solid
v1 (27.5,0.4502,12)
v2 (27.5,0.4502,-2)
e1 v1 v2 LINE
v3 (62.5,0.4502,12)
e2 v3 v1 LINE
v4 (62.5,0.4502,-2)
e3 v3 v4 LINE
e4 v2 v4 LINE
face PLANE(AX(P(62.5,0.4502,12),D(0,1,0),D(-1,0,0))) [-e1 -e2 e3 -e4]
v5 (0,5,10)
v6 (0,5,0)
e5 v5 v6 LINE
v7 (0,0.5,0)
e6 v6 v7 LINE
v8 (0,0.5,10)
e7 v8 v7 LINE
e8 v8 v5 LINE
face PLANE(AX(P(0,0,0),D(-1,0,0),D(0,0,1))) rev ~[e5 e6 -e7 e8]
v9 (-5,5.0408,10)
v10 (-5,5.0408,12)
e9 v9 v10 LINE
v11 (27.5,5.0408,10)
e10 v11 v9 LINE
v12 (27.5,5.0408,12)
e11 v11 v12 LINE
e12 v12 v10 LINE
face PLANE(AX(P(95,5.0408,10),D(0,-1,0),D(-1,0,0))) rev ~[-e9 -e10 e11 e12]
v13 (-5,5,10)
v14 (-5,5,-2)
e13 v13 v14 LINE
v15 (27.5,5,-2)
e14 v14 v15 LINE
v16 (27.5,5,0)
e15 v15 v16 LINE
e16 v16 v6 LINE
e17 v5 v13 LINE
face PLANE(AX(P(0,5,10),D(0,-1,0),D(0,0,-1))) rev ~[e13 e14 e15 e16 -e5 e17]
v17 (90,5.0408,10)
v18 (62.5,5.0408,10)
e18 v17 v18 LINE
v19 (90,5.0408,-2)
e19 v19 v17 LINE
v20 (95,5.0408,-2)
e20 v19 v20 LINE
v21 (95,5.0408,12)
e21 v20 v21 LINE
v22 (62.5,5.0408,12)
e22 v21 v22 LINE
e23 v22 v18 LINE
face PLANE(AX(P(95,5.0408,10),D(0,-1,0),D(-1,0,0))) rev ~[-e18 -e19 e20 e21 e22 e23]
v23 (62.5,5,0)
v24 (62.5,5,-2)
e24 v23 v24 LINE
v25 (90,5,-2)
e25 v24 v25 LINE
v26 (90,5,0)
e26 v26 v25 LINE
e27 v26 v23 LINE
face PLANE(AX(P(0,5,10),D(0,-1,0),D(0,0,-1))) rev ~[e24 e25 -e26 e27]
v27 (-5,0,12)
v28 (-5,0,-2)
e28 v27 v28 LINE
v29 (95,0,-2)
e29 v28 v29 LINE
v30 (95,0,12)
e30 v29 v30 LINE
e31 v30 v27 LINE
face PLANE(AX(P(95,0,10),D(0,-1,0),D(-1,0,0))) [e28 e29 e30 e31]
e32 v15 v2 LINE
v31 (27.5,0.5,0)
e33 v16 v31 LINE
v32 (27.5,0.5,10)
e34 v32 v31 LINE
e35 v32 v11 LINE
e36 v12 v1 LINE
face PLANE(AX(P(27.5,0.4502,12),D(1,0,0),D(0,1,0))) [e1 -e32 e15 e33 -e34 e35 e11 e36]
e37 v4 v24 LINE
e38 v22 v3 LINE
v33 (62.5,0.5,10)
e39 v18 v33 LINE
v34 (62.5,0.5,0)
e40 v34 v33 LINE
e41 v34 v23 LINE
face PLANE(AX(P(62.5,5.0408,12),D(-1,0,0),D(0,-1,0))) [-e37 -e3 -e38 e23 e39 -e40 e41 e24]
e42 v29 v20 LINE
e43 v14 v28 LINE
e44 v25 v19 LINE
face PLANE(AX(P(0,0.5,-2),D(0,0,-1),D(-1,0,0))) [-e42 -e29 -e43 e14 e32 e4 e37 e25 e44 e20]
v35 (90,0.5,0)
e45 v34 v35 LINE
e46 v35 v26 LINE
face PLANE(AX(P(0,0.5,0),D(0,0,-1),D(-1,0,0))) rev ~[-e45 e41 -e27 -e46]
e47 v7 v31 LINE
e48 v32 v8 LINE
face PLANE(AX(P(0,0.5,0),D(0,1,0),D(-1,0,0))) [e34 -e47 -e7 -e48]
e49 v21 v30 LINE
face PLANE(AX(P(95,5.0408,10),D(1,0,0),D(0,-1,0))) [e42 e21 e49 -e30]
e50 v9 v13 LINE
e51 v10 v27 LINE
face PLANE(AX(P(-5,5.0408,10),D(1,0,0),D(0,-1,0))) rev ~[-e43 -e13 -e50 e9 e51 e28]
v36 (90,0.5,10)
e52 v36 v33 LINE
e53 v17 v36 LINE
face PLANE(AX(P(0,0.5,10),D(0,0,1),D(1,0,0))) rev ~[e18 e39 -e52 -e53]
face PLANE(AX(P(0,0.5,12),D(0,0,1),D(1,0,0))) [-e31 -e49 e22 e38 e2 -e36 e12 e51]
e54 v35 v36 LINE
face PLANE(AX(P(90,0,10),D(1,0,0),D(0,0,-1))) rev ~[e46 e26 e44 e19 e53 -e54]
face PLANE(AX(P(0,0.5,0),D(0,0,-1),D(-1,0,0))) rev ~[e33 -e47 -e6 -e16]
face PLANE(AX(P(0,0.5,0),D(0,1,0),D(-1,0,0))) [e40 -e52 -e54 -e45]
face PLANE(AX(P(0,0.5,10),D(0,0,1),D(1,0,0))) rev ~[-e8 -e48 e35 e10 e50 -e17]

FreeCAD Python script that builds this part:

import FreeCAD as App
import Part
import Sketcher

V = App.Vector

doc = App.newDocument("Part")
body = doc.addObject("PartDesign::Body", "Body")
body.AllowCompound = True

# Sketch on XZ plane
sketch1 = doc.addObject("Sketcher::SketchObject", "Sketch")
body.addObject(sketch1)
sketch1.AttachmentSupport = (doc.XZ_Plane, [""])
sketch1.MapMode = "FlatFace"
sketch1.addGeometry([
    Part.LineSegment(V(90, 0, 0), V(0, 0, 0)),
    Part.LineSegment(V(0, 0, 0), V(0, 10, 0)),
    Part.LineSegment(V(0, 10, 0), V(90, 10, 0)),
    Part.LineSegment(V(90, 10, 0), V(90, 0, 0)),
], False)
sketch1.addConstraint([
    Sketcher.Constraint("Coincident", 0, 2, 1, 1),
    Sketcher.Constraint("Coincident", 1, 2, 2, 1),
    Sketcher.Constraint("Coincident", 2, 2, 3, 1),
    Sketcher.Constraint("Coincident", 3, 2, 0, 1),
    Sketcher.Constraint("Horizontal", 0),
    Sketcher.Constraint("Vertical", 1),
    Sketcher.Constraint("Horizontal", 2),
    Sketcher.Constraint("Vertical", 3),
    Sketcher.Constraint("Coincident", 0, 2, -1, 1),
    Sketcher.Constraint("DistanceX", 0, 2, 0, 1, 90.0),
    Sketcher.Constraint("DistanceY", 1, 1, 1, 2, 10.0),
])
pad1 = doc.addObject("PartDesign::Pad", "Pad")
body.addObject(pad1)
pad1.Profile = sketch1
pad1.Length = 0.5
pad1.Reversed = True

# Sketch on YZ plane
sketch2 = doc.addObject("Sketcher::SketchObject", "Sketch001")
body.addObject(sketch2)
sketch2.AttachmentSupport = (doc.YZ_Plane, [""])
sketch2.MapMode = "FlatFace"
sketch2.addGeometry([
    Part.LineSegment(V(0.5, 0, 0), V(0.5, 10, 0)),
    Part.LineSegment(V(0.5, 10, 0), V(5, 10, 0)),
    Part.LineSegment(V(5, 10, 0), V(5, 0, 0)),
    Part.LineSegment(V(5, 0, 0), V(0.5, 0, 0)),
], False)
sketch2.addConstraint([
    Sketcher.Constraint("Coincident", 0, 2, 1, 1),
    Sketcher.Constraint("Coincident", 1, 2, 2, 1),
    Sketcher.Constraint("Coincident", 2, 2, 3, 1),
    Sketcher.Constraint("Coincident", 3, 2, 0, 1),
    Sketcher.Constraint("Vertical", 0),
    Sketcher.Constraint("Horizontal", 1),
    Sketcher.Constraint("Vertical", 2),
    Sketcher.Constraint("Horizontal", 3),
    Sketcher.Constraint("PointOnObject", 2, 2, -1),
    Sketcher.Constraint("DistanceX", -1, 1, 1, 2, 5.0),
    Sketcher.Constraint("DistanceY", 0, 1, 0, 2, 10.0),
    Sketcher.Constraint("DistanceX", 1, 1, 1, 2, 4.5),
])
pad2 = doc.addObject("PartDesign::Pad", "Pad001")
body.addObject(pad2)
pad2.Profile = sketch2
pad2.Length = 5
pad2.Reversed = True

# Sketch on YZ plane
sketch3 = doc.addObject("Sketcher::SketchObject", "Sketch002")
body.addObject(sketch3)
sketch3.AttachmentSupport = (doc.YZ_Plane, [""])
sketch3.MapMode = "FlatFace"
sketch3.addGeometry([
    Part.LineSegment(V(0, 0, 0), V(0, 10, 0)),
    Part.LineSegment(V(0, 10, 0), V(0.5, 10, 0)),
    Part.LineSegment(V(0.5, 10, 0), V(0.5, 0, 0)),
    Part.LineSegment(V(0.5, 0, 0), V(0, 0, 0)),
], False)
sketch3.addConstraint([
    Sketcher.Constraint("Coincident", 0, 2, 1, 1),
    Sketcher.Constraint("Coincident", 1, 2, 2, 1),
    Sketcher.Constraint("Coincident", 2, 2, 3, 1),
    Sketcher.Constraint("Coincident", 3, 2, 0, 1),
    Sketcher.Constraint("Vertical", 0),
    Sketcher.Constraint("Horizontal", 1),
    Sketcher.Constraint("Vertical", 2),
    Sketcher.Constraint("Horizontal", 3),
    Sketcher.Constraint("Coincident", 3, 2, -1, 1),
    Sketcher.Constraint("DistanceY", 0, 1, 0, 2, 10.0),
    Sketcher.Constraint("DistanceX", 1, 1, 1, 2, 0.5),
])
pad3 = doc.addObject("PartDesign::Pad", "Pad002")
body.addObject(pad3)
pad3.Profile = sketch3
pad3.Length = 5
pad3.Reversed = True

# Sketch on YZ plane
sketch4 = doc.addObject("Sketcher::SketchObject", "Sketch003")
body.addObject(sketch4)
sketch4.AttachmentSupport = (doc.YZ_Plane, [""])
sketch4.MapMode = "FlatFace"
sketch4.AttachmentOffset = App.Placement(V(0, 0, 90), App.Rotation())
sketch4.addGeometry([
    Part.LineSegment(V(5, 10, 0), V(0, 10, 0)),
    Part.LineSegment(V(0, 10, 0), V(0, 0, 0)),
    Part.LineSegment(V(0, 0, 0), V(5, 0, 0)),
    Part.LineSegment(V(5, 0, 0), V(5, 10, 0)),
], False)
sketch4.addConstraint([
    Sketcher.Constraint("Coincident", 0, 2, 1, 1),
    Sketcher.Constraint("Coincident", 1, 2, 2, 1),
    Sketcher.Constraint("Coincident", 2, 2, 3, 1),
    Sketcher.Constraint("Coincident", 3, 2, 0, 1),
    Sketcher.Constraint("Horizontal", 0),
    Sketcher.Constraint("Vertical", 1),
    Sketcher.Constraint("Horizontal", 2),
    Sketcher.Constraint("Vertical", 3),
    Sketcher.Constraint("Coincident", 1, 2, -1, 1),
    Sketcher.Constraint("DistanceY", 1, 2, 1, 1, 10.0),
    Sketcher.Constraint("DistanceX", 0, 2, 0, 1, 5.0408),
])
pad4 = doc.addObject("PartDesign::Pad", "Pad003")
body.addObject(pad4)
pad4.Profile = sketch4
pad4.Length = 5

# Sketch on XY plane
sketch5 = doc.addObject("Sketcher::SketchObject", "Sketch004")
body.addObject(sketch5)
sketch5.AttachmentSupport = (doc.XY_Plane, [""])
sketch5.MapMode = "FlatFace"
sketch5.addGeometry([
    Part.LineSegment(V(95, 0, 0), V(-5, 0, 0)),  # 0
    Part.LineSegment(V(-5, 0, 0), V(-5, 5, 0)),  # 1
    Part.LineSegment(V(-5, 5, 0), V(90, 5, 0)),  # 2
    Part.LineSegment(V(90, 5, 0), V(90, 5.041, 0)),  # 3
    Part.LineSegment(V(90, 5.041, 0), V(95, 5.041, 0)),  # 4
    Part.LineSegment(V(95, 5.041, 0), V(95, 0, 0)),  # 5
], False)
sketch5.addConstraint([
    Sketcher.Constraint("Coincident", 0, 2, 1, 1),
    Sketcher.Constraint("Coincident", 1, 2, 2, 1),
    Sketcher.Constraint("Coincident", 2, 2, 3, 1),
    Sketcher.Constraint("Coincident", 3, 2, 4, 1),
    Sketcher.Constraint("Coincident", 4, 2, 5, 1),
    Sketcher.Constraint("Coincident", 5, 2, 0, 1),
    Sketcher.Constraint("Horizontal", 0),
    Sketcher.Constraint("Vertical", 1),
    Sketcher.Constraint("Horizontal", 2),
    Sketcher.Constraint("Vertical", 3),
    Sketcher.Constraint("Horizontal", 4),
    Sketcher.Constraint("Vertical", 5),
    Sketcher.Constraint("PointOnObject", 0, 2, -1),
    Sketcher.Constraint("Equal", 4, 1),
    Sketcher.Constraint("DistanceX", 0, 2, 0, 1, 100.0),
    Sketcher.Constraint("DistanceX", 2, 1, 2, 2, 95.0),
    Sketcher.Constraint("DistanceX", 0, 2, -1, 1, 5.0),
    Sketcher.Constraint("DistanceY", 3, 1, 3, 2, 0.0408),
])
pad5 = doc.addObject("PartDesign::Pad", "Pad004")
body.addObject(pad5)
pad5.Profile = sketch5
pad5.Length = 2
pad5.Reversed = True

# Sketch on XY plane
sketch6 = doc.addObject("Sketcher::SketchObject", "Sketch005")
body.addObject(sketch6)
sketch6.AttachmentSupport = (doc.XY_Plane, [""])
sketch6.MapMode = "FlatFace"
sketch6.AttachmentOffset = App.Placement(V(0, 0, 10), App.Rotation())
sketch6.addGeometry([
    Part.LineSegment(V(-5, 0, 0), V(95, 0, 0)),
    Part.LineSegment(V(95, 0, 0), V(95, 5, 0)),
    Part.LineSegment(V(95, 5, 0), V(-5, 5, 0)),
    Part.LineSegment(V(-5, 5, 0), V(-5, 0, 0)),
], False)
sketch6.addConstraint([
    Sketcher.Constraint("Coincident", 0, 2, 1, 1),
    Sketcher.Constraint("Coincident", 1, 2, 2, 1),
    Sketcher.Constraint("Coincident", 2, 2, 3, 1),
    Sketcher.Constraint("Coincident", 3, 2, 0, 1),
    Sketcher.Constraint("Horizontal", 0),
    Sketcher.Constraint("Vertical", 1),
    Sketcher.Constraint("Horizontal", 2),
    Sketcher.Constraint("Vertical", 3),
    Sketcher.Constraint("PointOnObject", 0, 2, -1),
    Sketcher.Constraint("DistanceX", 0, 1, 0, 2, 100.0),
    Sketcher.Constraint("DistanceX", -1, 1, 0, 2, 95.0),
    Sketcher.Constraint("DistanceY", 1, 1, 1, 2, 5.0408),
])
pad6 = doc.addObject("PartDesign::Pad", "Pad005")
body.addObject(pad6)
pad6.Profile = sketch6
pad6.Length = 2

# Sketch on XY plane
sketch7 = doc.addObject("Sketcher::SketchObject", "Sketch006")
body.addObject(sketch7)
sketch7.AttachmentSupport = (doc.XY_Plane, [""])
sketch7.MapMode = "FlatFace"
sketch7.AttachmentOffset = App.Placement(V(0, 0, 12), App.Rotation())
sketch7.addGeometry([
    Part.LineSegment(V(62, 0, 0), V(62, 10, 0)),
    Part.LineSegment(V(62, 10, 0), V(28, 10, 0)),
    Part.LineSegment(V(28, 10, 0), V(28, 0, 0)),
    Part.LineSegment(V(28, 0, 0), V(62, 0, 0)),
], False)
sketch7.addConstraint([
    Sketcher.Constraint("Coincident", 0, 2, 1, 1),
    Sketcher.Constraint("Coincident", 1, 2, 2, 1),
    Sketcher.Constraint("Coincident", 2, 2, 3, 1),
    Sketcher.Constraint("Coincident", 3, 2, 0, 1),
    Sketcher.Constraint("Vertical", 0),
    Sketcher.Constraint("Horizontal", 1),
    Sketcher.Constraint("Vertical", 2),
    Sketcher.Constraint("Horizontal", 3),
    Sketcher.Constraint("DistanceX", 1, 2, 1, 1, 35.0),
    Sketcher.Constraint("DistanceX", -1, 1, 0, 2, 62.5),
    Sketcher.Constraint("DistanceY", 0, 1, 0, 2, 9.1813),
    Sketcher.Constraint("DistanceY", -1, 1, 0, 2, 9.6315),
])
pocket1 = doc.addObject("PartDesign::Pocket", "Pocket")
body.addObject(pocket1)
pocket1.Profile = sketch7
pocket1.Length = 20

doc.recompute()
